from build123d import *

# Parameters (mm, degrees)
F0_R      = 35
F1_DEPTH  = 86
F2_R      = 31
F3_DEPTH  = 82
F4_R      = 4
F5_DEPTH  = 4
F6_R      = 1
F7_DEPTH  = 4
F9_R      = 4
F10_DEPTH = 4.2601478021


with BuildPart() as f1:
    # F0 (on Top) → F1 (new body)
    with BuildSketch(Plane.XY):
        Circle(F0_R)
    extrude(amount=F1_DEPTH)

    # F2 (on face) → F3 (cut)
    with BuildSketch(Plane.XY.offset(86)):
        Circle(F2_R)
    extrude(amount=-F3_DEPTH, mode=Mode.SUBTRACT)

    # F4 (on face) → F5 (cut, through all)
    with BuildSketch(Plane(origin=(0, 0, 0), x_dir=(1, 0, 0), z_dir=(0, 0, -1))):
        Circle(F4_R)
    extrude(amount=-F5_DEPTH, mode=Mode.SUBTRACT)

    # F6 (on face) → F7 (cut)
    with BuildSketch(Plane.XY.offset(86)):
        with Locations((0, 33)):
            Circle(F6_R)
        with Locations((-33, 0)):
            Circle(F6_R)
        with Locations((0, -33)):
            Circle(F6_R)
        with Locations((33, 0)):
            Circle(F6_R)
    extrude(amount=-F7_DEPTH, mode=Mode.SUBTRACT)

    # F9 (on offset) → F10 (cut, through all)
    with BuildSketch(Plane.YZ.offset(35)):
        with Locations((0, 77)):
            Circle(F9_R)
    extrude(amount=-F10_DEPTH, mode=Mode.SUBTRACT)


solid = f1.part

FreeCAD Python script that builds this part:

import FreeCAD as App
import Part
import Sketcher

V = App.Vector

doc = App.newDocument("Part")
body = doc.addObject("PartDesign::Body", "Body")

# Sketch on XY plane
sketch1 = body.newObject("Sketcher::SketchObject", "Sketch")
sketch1.AttachmentSupport = (doc.getObject("XY_Plane"), [""])
sketch1.MapMode = "FlatFace"
sketch1.addGeometry(Part.Circle(V(0, 0, 0), V(0, 0, 1), 35), False)
sketch1.addConstraint([
    Sketcher.Constraint("Coincident", 0, 3, -1, 1),
    Sketcher.Constraint("Diameter", 0, 70.0),
])
pad1 = body.newObject("PartDesign::Pad", "Pad")
pad1.Profile = sketch1
pad1.Length = 86

# Sketch on XY plane
sketch2 = body.newObject("Sketcher::SketchObject", "Sketch001")
sketch2.AttachmentSupport = (doc.getObject("XY_Plane"), [""])
sketch2.MapMode = "FlatFace"
sketch2.AttachmentOffset = App.Placement(V(0, 0, 86), App.Rotation())
sketch2.addGeometry(Part.Circle(V(0, 0, 0), V(0, 0, 1), 31), False)
sketch2.addConstraint([
    Sketcher.Constraint("Coincident", 0, 3, -1, 1),
    Sketcher.Constraint("Diameter", 0, 62.0),
])
pocket1 = body.newObject("PartDesign::Pocket", "Pocket")
pocket1.Profile = sketch2
pocket1.Length = 82

# Sketch on XY plane
sketch3 = body.newObject("Sketcher::SketchObject", "Sketch002")
sketch3.AttachmentSupport = (doc.getObject("XY_Plane"), [""])
sketch3.MapMode = "FlatFace"
sketch3.addGeometry(Part.Circle(V(0, 0, 0), V(0, 0, 1), 4), False)
sketch3.addConstraint([
    Sketcher.Constraint("Coincident", 0, 3, -1, 1),
    Sketcher.Constraint("Diameter", 0, 8.0),
])
pocket2 = body.newObject("PartDesign::Pocket", "Pocket001")
pocket2.Profile = sketch3
pocket2.Type = "ThroughAll"
pocket2.Reversed = True

# Sketch on XY plane
sketch4 = body.newObject("Sketcher::SketchObject", "Sketch003")
sketch4.AttachmentSupport = (doc.getObject("XY_Plane"), [""])
sketch4.MapMode = "FlatFace"
sketch4.AttachmentOffset = App.Placement(V(0, 0, 86), App.Rotation())
sketch4.addGeometry([
    Part.Circle(V(0, 33, 0), V(0, 0, 1), 1),
    Part.Circle(V(-33, 0, 0), V(0, 0, 1), 1),
    Part.Circle(V(0, -33, 0), V(0, 0, 1), 1),
    Part.Circle(V(33, 0, 0), V(0, 0, 1), 1),
], False)
sketch4.addConstraint([
    Sketcher.Constraint("Equal", 0, 1),
    Sketcher.Constraint("Equal", 1, 2),
    Sketcher.Constraint("Equal", 2, 3),
    Sketcher.Constraint("Symmetric", 0, 3, 2, 3, -1, 1),
    Sketcher.Constraint("Symmetric", 1, 3, 3, 3, -1, 1),
    Sketcher.Constraint("PointOnObject", 0, 3, -2),
    Sketcher.Constraint("PointOnObject", 1, 3, -1),
    Sketcher.Constraint("Diameter", 0, 2.0),
    Sketcher.Constraint("DistanceY", -1, 1, 0, 3, 33.0),
    Sketcher.Constraint("DistanceX", 1, 3, -1, 1, 33.0),
])
pocket3 = body.newObject("PartDesign::Pocket", "Pocket002")
pocket3.Profile = sketch4
pocket3.Length = 4

# Sketch on YZ plane
sketch5 = body.newObject("Sketcher::SketchObject", "Sketch004")
sketch5.AttachmentSupport = (doc.getObject("YZ_Plane"), [""])
sketch5.MapMode = "FlatFace"
sketch5.AttachmentOffset = App.Placement(V(0, 0, 35), App.Rotation())
sketch5.addGeometry(Part.Circle(V(0, 77, 0), V(0, 0, 1), 4), False)
sketch5.addConstraint([
    Sketcher.Constraint("PointOnObject", 0, 3, -2),
    Sketcher.Constraint("Diameter", 0, 8.0),
    Sketcher.Constraint("DistanceY", -1, 1, 0, 3, 77.0),
])
pocket4 = body.newObject("PartDesign::Pocket", "Pocket003")
pocket4.Profile = sketch5
pocket4.Length = 4.260148

doc.recompute()
